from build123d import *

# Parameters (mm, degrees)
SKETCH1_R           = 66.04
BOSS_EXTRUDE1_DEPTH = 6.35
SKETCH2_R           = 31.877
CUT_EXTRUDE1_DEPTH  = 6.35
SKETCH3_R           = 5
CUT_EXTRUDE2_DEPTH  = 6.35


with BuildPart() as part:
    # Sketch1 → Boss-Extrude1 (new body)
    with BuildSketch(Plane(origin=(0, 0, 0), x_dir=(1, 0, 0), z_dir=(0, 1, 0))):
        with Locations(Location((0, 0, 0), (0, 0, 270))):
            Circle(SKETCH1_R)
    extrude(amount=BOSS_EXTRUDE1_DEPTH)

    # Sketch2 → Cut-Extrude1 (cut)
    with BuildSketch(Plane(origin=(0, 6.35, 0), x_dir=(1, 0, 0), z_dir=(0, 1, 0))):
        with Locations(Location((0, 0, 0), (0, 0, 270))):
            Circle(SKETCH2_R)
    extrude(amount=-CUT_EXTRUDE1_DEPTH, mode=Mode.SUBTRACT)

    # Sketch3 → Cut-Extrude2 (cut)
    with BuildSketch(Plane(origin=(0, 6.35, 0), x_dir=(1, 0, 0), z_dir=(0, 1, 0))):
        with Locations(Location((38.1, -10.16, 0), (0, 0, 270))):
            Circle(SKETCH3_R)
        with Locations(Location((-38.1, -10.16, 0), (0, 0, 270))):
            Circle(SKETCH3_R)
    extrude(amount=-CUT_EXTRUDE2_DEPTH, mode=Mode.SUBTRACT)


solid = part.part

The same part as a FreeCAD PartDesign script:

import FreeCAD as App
import Part
import Sketcher

V = App.Vector
Q = App.Units.Quantity

doc = App.newDocument("Part")
body = doc.addObject("PartDesign::Body", "Body")

sketch1 = doc.addObject("Sketcher::SketchObject", "Sketch")
body.addObject(sketch1)
sketch1.AttachmentSupport = (doc.XZ_Plane, [""])
sketch1.MapMode = "FlatFace"
sketch1.addGeometry(Part.Circle(V(0, 0, 0), V(0, 0, 1), 66), False)
sketch1.addConstraint(Sketcher.Constraint("Coincident", 0, 3, -1, 1))
sketch1.addConstraint(Sketcher.Constraint("Diameter", 0, Q("5.2 in")))
pad1 = doc.addObject("PartDesign::Pad", "Pad")
body.addObject(pad1)
pad1.Profile = sketch1
pad1.Length = Q("0.25 in")
pad1.Reversed = True

sketch2 = doc.addObject("Sketcher::SketchObject", "Sketch001")
body.addObject(sketch2)
sketch2.AttachmentSupport = (doc.XZ_Plane, [""])
sketch2.MapMode = "FlatFace"
sketch2.AttachmentOffset = App.Placement(V(0, 0, -0.25 * 25.4), App.Rotation())
sketch2.addGeometry(Part.Circle(V(0, 0, 0), V(0, 0, 1), 32), False)
sketch2.addConstraint(Sketcher.Constraint("Coincident", 0, 3, -1, 1))
sketch2.addConstraint(Sketcher.Constraint("Diameter", 0, Q("2.51 in")))
pocket1 = doc.addObject("PartDesign::Pocket", "Pocket")
body.addObject(pocket1)
pocket1.Profile = sketch2
pocket1.Length = Q("0.25 in")
pocket1.Reversed = True

sketch3 = doc.addObject("Sketcher::SketchObject", "Sketch002")
body.addObject(sketch3)
sketch3.AttachmentSupport = (doc.XZ_Plane, [""])
sketch3.MapMode = "FlatFace"
sketch3.AttachmentOffset = App.Placement(V(0, 0, -0.25 * 25.4), App.Rotation())
sketch3.addGeometry(Part.Circle(V(38, 10, 0), V(0, 0, 1), 5), False)
sketch3.addGeometry(Part.Circle(V(-38, 10, 0), V(0, 0, 1), 5), False)
sketch3.addConstraint(Sketcher.Constraint("Equal", 0, 1))
sketch3.addConstraint(Sketcher.Constraint("Symmetric", 0, 3, 1, 3, -2))
sketch3.addConstraint(Sketcher.Constraint("DistanceX", 1, 3, 0, 3, Q("3 in")))
sketch3.addConstraint(Sketcher.Constraint("DistanceY", -1, 1, 0, 3, Q("0.4 in")))
sketch3.addConstraint(Sketcher.Constraint("Diameter", 0, 10.0))
pocket2 = doc.addObject("PartDesign::Pocket", "Pocket001")
body.addObject(pocket2)
pocket2.Profile = sketch3
pocket2.Length = Q("0.25 in")
pocket2.Reversed = True

doc.recompute()
